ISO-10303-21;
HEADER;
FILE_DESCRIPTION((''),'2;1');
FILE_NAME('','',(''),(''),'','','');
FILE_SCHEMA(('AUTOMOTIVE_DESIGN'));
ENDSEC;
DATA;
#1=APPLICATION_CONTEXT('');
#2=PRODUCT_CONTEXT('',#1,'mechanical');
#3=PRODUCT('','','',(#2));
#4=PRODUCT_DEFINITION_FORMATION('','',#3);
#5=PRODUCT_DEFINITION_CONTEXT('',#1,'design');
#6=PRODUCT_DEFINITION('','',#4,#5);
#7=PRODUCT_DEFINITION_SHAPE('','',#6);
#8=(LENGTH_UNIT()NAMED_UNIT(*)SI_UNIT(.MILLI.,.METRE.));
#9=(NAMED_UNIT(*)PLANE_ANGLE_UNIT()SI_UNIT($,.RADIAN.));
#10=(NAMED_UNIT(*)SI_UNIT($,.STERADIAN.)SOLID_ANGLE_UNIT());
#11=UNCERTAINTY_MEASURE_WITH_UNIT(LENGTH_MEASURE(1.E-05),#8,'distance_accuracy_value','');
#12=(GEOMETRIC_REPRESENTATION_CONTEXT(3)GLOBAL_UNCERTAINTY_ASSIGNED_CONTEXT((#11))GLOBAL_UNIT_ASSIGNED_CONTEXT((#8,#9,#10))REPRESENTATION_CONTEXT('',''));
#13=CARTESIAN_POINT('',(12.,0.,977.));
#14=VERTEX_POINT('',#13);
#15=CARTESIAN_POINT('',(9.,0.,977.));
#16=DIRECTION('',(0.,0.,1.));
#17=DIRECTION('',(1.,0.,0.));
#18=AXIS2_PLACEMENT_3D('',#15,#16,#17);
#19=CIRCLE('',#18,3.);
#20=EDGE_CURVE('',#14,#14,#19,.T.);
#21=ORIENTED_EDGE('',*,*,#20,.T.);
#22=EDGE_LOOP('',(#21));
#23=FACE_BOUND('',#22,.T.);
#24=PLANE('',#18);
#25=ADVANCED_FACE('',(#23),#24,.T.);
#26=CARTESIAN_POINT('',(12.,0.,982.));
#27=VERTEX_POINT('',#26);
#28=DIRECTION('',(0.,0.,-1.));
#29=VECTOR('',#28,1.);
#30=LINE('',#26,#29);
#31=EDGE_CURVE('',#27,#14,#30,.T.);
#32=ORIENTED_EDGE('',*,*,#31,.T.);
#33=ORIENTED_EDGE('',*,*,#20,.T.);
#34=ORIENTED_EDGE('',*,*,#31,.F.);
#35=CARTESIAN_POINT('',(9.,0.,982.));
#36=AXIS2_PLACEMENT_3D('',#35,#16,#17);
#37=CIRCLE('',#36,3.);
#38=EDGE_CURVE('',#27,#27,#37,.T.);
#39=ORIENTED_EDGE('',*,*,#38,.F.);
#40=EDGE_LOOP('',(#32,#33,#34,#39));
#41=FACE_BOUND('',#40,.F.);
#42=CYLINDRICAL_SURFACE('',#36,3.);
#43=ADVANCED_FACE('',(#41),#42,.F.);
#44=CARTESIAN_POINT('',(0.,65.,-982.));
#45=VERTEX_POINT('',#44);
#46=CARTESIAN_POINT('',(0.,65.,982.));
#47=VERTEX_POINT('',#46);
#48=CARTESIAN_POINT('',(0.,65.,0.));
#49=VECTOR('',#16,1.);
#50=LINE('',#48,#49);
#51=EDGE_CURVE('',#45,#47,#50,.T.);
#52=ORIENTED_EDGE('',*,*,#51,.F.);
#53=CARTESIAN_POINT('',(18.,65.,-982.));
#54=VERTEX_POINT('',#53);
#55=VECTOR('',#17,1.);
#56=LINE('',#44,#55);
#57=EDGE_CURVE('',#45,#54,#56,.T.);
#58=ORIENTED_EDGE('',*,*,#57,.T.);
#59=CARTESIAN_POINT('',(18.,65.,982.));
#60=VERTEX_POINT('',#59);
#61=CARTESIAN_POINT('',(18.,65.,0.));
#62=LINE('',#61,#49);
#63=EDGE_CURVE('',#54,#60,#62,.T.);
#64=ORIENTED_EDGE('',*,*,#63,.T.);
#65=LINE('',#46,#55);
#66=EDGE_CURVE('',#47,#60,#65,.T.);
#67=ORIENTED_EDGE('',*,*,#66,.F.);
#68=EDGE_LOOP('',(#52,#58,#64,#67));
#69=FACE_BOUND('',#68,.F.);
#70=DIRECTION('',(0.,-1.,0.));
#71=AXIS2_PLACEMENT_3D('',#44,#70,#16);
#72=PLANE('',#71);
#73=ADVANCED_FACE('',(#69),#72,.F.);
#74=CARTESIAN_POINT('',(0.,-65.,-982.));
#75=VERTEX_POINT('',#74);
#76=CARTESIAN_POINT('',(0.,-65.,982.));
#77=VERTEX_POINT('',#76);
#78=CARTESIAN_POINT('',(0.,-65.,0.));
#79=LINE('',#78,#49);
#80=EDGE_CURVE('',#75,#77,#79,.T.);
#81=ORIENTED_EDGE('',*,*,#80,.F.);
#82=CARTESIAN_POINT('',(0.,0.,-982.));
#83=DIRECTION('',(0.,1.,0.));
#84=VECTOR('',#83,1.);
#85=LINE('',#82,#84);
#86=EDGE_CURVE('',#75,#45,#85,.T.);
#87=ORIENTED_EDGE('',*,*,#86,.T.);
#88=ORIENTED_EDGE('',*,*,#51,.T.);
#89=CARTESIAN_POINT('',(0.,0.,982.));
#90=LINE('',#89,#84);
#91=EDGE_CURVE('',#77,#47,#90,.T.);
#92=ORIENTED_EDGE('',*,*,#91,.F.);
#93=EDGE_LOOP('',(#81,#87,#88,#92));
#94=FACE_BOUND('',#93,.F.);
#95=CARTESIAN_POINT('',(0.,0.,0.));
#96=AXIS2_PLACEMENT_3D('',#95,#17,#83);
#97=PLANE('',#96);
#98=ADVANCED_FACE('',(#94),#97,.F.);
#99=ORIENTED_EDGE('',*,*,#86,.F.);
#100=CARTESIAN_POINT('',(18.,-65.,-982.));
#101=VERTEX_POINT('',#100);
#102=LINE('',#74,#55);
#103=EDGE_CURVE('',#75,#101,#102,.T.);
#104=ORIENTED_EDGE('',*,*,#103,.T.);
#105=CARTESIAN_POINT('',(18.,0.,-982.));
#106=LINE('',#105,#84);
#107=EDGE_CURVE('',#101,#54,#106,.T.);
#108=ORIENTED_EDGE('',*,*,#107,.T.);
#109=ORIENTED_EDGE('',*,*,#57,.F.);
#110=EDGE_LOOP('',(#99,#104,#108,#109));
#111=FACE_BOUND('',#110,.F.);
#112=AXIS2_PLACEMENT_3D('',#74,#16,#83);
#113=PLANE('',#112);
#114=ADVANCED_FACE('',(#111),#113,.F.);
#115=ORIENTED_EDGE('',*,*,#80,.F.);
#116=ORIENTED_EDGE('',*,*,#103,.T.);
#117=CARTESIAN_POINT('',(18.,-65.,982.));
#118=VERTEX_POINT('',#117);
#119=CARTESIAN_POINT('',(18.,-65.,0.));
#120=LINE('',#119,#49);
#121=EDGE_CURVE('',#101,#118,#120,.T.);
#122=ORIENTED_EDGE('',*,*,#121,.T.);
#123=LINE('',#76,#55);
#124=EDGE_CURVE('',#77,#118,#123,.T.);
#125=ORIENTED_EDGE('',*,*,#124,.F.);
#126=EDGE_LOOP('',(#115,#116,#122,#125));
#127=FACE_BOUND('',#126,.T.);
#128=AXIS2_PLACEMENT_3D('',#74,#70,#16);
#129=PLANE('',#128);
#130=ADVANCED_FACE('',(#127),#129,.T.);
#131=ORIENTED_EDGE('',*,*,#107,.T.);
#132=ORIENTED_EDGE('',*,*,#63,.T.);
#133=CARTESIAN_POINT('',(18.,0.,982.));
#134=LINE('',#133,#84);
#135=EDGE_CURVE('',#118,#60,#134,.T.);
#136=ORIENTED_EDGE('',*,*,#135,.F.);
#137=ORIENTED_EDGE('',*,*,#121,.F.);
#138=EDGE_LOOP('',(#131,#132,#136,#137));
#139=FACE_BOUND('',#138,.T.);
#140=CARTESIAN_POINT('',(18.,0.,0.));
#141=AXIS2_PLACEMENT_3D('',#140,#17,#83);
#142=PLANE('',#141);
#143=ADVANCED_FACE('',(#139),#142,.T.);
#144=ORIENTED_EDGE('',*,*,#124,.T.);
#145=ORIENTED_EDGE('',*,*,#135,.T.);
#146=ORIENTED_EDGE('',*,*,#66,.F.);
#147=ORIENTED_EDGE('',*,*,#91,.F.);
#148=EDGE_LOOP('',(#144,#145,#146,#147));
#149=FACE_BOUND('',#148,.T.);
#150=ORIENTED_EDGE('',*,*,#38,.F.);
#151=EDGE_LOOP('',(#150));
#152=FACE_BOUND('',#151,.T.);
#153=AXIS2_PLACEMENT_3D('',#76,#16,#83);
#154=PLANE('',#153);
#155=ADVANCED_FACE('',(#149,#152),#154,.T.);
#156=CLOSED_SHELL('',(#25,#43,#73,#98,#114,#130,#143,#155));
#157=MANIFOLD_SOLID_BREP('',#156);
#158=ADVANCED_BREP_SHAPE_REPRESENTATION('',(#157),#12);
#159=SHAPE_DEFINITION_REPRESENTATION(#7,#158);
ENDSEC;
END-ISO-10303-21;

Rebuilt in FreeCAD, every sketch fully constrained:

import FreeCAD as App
import Part
import Sketcher

V = App.Vector

doc = App.newDocument("Part")
params = doc.addObject("Spreadsheet::Sheet", "Params")
for row, (alias, value) in enumerate([
    ("sketch1_width", "130 mm"),
    ("sketch1_height", "1964 mm"),
    ("pad1_length", "18 mm"),
    ("sketch2_diameter", "6 mm"),
    ("pocket1_length", "5 mm"),
], start=1):
    params.set(f"A{row}", alias)
    params.set(f"B{row}", "=" + value)
    params.setAlias(f"B{row}", alias)

body = doc.addObject("PartDesign::Body", "Body")

sketch1 = body.newObject("Sketcher::SketchObject", "Sketch")
sketch1.AttachmentSupport = (doc.getObject("YZ_Plane"), [""])
sketch1.MapMode = "FlatFace"
sketch1.addGeometry(Part.LineSegment(V(-65, 982, 0), V(-65, -982, 0)), False)
sketch1.addGeometry(Part.LineSegment(V(-65, -982, 0), V(65, -982, 0)), False)
sketch1.addGeometry(Part.LineSegment(V(65, -982, 0), V(65, 982, 0)), False)
sketch1.addGeometry(Part.LineSegment(V(65, 982, 0), V(-65, 982, 0)), False)
sketch1.addConstraint(Sketcher.Constraint("Coincident", 0, 2, 1, 1))
sketch1.addConstraint(Sketcher.Constraint("Coincident", 1, 2, 2, 1))
sketch1.addConstraint(Sketcher.Constraint("Coincident", 2, 2, 3, 1))
sketch1.addConstraint(Sketcher.Constraint("Coincident", 3, 2, 0, 1))
sketch1.addConstraint(Sketcher.Constraint("Vertical", 0))
sketch1.addConstraint(Sketcher.Constraint("Horizontal", 1))
sketch1.addConstraint(Sketcher.Constraint("Vertical", 2))
sketch1.addConstraint(Sketcher.Constraint("Horizontal", 3))
sketch1.addConstraint(Sketcher.Constraint("Symmetric", 0, 2, 2, 2, -1, 1))
sketch1.addConstraint(Sketcher.Constraint("DistanceX", 1, 1, 1, 2, 130.0))
sketch1.addConstraint(Sketcher.Constraint("DistanceY", 0, 2, 0, 1, 1964.0))
sketch1.setExpression("Constraints[9]", "Params.sketch1_width")
sketch1.setExpression("Constraints[10]", "Params.sketch1_height")
pad1 = body.newObject("PartDesign::Pad", "Pad")
pad1.Profile = sketch1
pad1.setExpression("Length", "Params.pad1_length")

sketch2 = body.newObject("Sketcher::SketchObject", "Sketch001")
sketch2.AttachmentSupport = (doc.getObject("XY_Plane"), [""])
sketch2.MapMode = "FlatFace"
sketch2.AttachmentOffset = App.Placement(V(0, 0, 982), App.Rotation())
sketch2.addGeometry(Part.Circle(V(9, 0, 0), V(0, 0, 1), 3), False)
sketch2.addConstraint(Sketcher.Constraint("PointOnObject", 0, 3, -1))
sketch2.addConstraint(Sketcher.Constraint("Diameter", 0, 6.0))
sketch2.addConstraint(Sketcher.Constraint("DistanceX", -1, 1, 0, 3, 9.0))
sketch2.setExpression("Constraints[1]", "Params.sketch2_diameter")
pocket1 = body.newObject("PartDesign::Pocket", "Pocket")
pocket1.Profile = sketch2
pocket1.setExpression("Length", "Params.pocket1_length")

doc.recompute()
